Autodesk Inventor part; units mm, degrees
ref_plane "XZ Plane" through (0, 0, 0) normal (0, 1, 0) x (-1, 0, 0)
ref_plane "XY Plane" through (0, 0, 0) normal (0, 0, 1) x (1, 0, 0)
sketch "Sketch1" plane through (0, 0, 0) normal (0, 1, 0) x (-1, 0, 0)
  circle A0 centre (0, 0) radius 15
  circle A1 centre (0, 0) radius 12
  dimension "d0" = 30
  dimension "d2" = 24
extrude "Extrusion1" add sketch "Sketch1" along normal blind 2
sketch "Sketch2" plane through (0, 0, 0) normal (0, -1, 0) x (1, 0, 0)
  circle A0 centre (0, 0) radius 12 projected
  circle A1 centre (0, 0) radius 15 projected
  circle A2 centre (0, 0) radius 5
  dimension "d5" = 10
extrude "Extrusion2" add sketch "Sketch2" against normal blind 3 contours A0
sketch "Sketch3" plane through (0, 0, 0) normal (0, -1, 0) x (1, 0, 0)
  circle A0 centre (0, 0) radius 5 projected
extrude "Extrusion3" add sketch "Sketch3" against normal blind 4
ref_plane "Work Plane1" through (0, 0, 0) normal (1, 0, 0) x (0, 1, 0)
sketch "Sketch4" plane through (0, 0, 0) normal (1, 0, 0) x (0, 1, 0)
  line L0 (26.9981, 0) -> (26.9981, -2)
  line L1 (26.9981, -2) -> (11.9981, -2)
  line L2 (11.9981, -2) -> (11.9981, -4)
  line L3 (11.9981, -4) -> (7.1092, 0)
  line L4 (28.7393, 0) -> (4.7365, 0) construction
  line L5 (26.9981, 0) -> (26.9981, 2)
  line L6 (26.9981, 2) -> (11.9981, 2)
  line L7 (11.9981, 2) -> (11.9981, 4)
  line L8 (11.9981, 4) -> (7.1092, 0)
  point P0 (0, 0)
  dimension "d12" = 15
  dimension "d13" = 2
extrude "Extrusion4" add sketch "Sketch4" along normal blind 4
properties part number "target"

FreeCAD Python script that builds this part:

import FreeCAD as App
import Part
import Sketcher
Q = App.Units.Quantity

doc = App.newDocument("Part")
body = doc.addObject("PartDesign::Body", "Body")
body.AllowCompound = True

# Sketch on XZ plane
sketch1 = body.newObject("Sketcher::SketchObject", "Sketch")
sketch1.AttachmentSupport = (doc.getObject("XZ_Plane"), [""])
sketch1.MapMode = "FlatFace"
sketch1.addGeometry([
    Part.Circle(App.Vector(0, 0, 0), App.Vector(0, 0, 1), 15),
    Part.Circle(App.Vector(0, 0, 0), App.Vector(0, 0, 1), 12),
], False)
sketch1.addConstraint([
    Sketcher.Constraint("Coincident", 0, 3, -1, 1),
    Sketcher.Constraint("Coincident", 1, 3, -1, 1),
    Sketcher.Constraint("Diameter", 0, Q("30 mm")),
    Sketcher.Constraint("Diameter", 1, Q("24 mm")),
])
pad1 = body.newObject("PartDesign::Pad", "Pad")
pad1.Profile = sketch1
pad1.Length = 2
pad1.Reversed = True

# Sketch on XZ plane
sketch2 = body.newObject("Sketcher::SketchObject", "Sketch001")
sketch2.AttachmentSupport = (doc.getObject("XZ_Plane"), [""])
sketch2.MapMode = "FlatFace"
sketch2.addGeometry([
    Part.Circle(App.Vector(0, 0, 0), App.Vector(0, 0, 1), 12),
    Part.Circle(App.Vector(0, 0, 0), App.Vector(0, 0, 1), 5),
], False)
sketch2.addConstraint([
    Sketcher.Constraint("Coincident", 0, 3, -1, 1),
    Sketcher.Constraint("Coincident", 1, 3, -1, 1),
    Sketcher.Constraint("Diameter", 1, Q("10 mm")),
    Sketcher.Constraint("Diameter", 0, Q("24 mm")),
])
pad2 = body.newObject("PartDesign::Pad", "Pad001")
pad2.Profile = sketch2
pad2.Length = 3
pad2.Reversed = True

# Sketch on XZ plane
sketch3 = body.newObject("Sketcher::SketchObject", "Sketch002")
sketch3.AttachmentSupport = (doc.getObject("XZ_Plane"), [""])
sketch3.MapMode = "FlatFace"
sketch3.addGeometry(Part.Circle(App.Vector(0, 0, 0), App.Vector(0, 0, 1), 5), False)
sketch3.addConstraint([
    Sketcher.Constraint("Coincident", 0, 3, -1, 1),
    Sketcher.Constraint("Diameter", 0, Q("10 mm")),
])
pad3 = body.newObject("PartDesign::Pad", "Pad002")
pad3.Profile = sketch3
pad3.Length = 4
pad3.Reversed = True

# Sketch on YZ plane
sketch4 = body.newObject("Sketcher::SketchObject", "Sketch003")
sketch4.AttachmentSupport = (doc.getObject("YZ_Plane"), [""])
sketch4.MapMode = "FlatFace"
sketch4.addGeometry([
    Part.LineSegment(App.Vector(27, -2, 0), App.Vector(27, 2, 0)),  # 0
    Part.LineSegment(App.Vector(27, 2, 0), App.Vector(12, 2, 0)),  # 1
    Part.LineSegment(App.Vector(12, 2, 0), App.Vector(12, 4, 0)),  # 2
    Part.LineSegment(App.Vector(12, 4, 0), App.Vector(7.1, 0, 0)),  # 3
    Part.LineSegment(App.Vector(7.1, 0, 0), App.Vector(12, -4, 0)),  # 4
    Part.LineSegment(App.Vector(12, -4, 0), App.Vector(12, -2, 0)),  # 5
    Part.LineSegment(App.Vector(12, -2, 0), App.Vector(27, -2, 0)),  # 6
], False)
sketch4.addConstraint([
    Sketcher.Constraint("Coincident", 0, 2, 1, 1),
    Sketcher.Constraint("Coincident", 1, 2, 2, 1),
    Sketcher.Constraint("Coincident", 2, 2, 3, 1),
    Sketcher.Constraint("Coincident", 3, 2, 4, 1),
    Sketcher.Constraint("Coincident", 4, 2, 5, 1),
    Sketcher.Constraint("Coincident", 5, 2, 6, 1),
    Sketcher.Constraint("Coincident", 6, 2, 0, 1),
    Sketcher.Constraint("Vertical", 0),
    Sketcher.Constraint("Horizontal", 1),
    Sketcher.Constraint("Vertical", 2),
    Sketcher.Constraint("Vertical", 5),
    Sketcher.Constraint("Horizontal", 6),
    Sketcher.Constraint("Symmetric", 2, 2, 4, 2, -1),
    Sketcher.Constraint("PointOnObject", 3, 2, -1),
    Sketcher.Constraint("Equal", 2, 5),
    Sketcher.Constraint("DistanceX", 1, 2, 1, 1, Q("15 mm")),
    Sketcher.Constraint("DistanceY", 2, 1, 2, 2, Q("2 mm")),
    Sketcher.Constraint("DistanceY", -1, 1, 0, 2, Q("2 mm")),
    Sketcher.Constraint("Angle", 3, Q("-140.7107 deg")),
    Sketcher.Constraint("DistanceX", -1, 1, 0, 2, Q("26.998 mm")),
])
pad4 = body.newObject("PartDesign::Pad", "Pad003")
pad4.Profile = sketch4
pad4.Length = 4

doc.recompute()
